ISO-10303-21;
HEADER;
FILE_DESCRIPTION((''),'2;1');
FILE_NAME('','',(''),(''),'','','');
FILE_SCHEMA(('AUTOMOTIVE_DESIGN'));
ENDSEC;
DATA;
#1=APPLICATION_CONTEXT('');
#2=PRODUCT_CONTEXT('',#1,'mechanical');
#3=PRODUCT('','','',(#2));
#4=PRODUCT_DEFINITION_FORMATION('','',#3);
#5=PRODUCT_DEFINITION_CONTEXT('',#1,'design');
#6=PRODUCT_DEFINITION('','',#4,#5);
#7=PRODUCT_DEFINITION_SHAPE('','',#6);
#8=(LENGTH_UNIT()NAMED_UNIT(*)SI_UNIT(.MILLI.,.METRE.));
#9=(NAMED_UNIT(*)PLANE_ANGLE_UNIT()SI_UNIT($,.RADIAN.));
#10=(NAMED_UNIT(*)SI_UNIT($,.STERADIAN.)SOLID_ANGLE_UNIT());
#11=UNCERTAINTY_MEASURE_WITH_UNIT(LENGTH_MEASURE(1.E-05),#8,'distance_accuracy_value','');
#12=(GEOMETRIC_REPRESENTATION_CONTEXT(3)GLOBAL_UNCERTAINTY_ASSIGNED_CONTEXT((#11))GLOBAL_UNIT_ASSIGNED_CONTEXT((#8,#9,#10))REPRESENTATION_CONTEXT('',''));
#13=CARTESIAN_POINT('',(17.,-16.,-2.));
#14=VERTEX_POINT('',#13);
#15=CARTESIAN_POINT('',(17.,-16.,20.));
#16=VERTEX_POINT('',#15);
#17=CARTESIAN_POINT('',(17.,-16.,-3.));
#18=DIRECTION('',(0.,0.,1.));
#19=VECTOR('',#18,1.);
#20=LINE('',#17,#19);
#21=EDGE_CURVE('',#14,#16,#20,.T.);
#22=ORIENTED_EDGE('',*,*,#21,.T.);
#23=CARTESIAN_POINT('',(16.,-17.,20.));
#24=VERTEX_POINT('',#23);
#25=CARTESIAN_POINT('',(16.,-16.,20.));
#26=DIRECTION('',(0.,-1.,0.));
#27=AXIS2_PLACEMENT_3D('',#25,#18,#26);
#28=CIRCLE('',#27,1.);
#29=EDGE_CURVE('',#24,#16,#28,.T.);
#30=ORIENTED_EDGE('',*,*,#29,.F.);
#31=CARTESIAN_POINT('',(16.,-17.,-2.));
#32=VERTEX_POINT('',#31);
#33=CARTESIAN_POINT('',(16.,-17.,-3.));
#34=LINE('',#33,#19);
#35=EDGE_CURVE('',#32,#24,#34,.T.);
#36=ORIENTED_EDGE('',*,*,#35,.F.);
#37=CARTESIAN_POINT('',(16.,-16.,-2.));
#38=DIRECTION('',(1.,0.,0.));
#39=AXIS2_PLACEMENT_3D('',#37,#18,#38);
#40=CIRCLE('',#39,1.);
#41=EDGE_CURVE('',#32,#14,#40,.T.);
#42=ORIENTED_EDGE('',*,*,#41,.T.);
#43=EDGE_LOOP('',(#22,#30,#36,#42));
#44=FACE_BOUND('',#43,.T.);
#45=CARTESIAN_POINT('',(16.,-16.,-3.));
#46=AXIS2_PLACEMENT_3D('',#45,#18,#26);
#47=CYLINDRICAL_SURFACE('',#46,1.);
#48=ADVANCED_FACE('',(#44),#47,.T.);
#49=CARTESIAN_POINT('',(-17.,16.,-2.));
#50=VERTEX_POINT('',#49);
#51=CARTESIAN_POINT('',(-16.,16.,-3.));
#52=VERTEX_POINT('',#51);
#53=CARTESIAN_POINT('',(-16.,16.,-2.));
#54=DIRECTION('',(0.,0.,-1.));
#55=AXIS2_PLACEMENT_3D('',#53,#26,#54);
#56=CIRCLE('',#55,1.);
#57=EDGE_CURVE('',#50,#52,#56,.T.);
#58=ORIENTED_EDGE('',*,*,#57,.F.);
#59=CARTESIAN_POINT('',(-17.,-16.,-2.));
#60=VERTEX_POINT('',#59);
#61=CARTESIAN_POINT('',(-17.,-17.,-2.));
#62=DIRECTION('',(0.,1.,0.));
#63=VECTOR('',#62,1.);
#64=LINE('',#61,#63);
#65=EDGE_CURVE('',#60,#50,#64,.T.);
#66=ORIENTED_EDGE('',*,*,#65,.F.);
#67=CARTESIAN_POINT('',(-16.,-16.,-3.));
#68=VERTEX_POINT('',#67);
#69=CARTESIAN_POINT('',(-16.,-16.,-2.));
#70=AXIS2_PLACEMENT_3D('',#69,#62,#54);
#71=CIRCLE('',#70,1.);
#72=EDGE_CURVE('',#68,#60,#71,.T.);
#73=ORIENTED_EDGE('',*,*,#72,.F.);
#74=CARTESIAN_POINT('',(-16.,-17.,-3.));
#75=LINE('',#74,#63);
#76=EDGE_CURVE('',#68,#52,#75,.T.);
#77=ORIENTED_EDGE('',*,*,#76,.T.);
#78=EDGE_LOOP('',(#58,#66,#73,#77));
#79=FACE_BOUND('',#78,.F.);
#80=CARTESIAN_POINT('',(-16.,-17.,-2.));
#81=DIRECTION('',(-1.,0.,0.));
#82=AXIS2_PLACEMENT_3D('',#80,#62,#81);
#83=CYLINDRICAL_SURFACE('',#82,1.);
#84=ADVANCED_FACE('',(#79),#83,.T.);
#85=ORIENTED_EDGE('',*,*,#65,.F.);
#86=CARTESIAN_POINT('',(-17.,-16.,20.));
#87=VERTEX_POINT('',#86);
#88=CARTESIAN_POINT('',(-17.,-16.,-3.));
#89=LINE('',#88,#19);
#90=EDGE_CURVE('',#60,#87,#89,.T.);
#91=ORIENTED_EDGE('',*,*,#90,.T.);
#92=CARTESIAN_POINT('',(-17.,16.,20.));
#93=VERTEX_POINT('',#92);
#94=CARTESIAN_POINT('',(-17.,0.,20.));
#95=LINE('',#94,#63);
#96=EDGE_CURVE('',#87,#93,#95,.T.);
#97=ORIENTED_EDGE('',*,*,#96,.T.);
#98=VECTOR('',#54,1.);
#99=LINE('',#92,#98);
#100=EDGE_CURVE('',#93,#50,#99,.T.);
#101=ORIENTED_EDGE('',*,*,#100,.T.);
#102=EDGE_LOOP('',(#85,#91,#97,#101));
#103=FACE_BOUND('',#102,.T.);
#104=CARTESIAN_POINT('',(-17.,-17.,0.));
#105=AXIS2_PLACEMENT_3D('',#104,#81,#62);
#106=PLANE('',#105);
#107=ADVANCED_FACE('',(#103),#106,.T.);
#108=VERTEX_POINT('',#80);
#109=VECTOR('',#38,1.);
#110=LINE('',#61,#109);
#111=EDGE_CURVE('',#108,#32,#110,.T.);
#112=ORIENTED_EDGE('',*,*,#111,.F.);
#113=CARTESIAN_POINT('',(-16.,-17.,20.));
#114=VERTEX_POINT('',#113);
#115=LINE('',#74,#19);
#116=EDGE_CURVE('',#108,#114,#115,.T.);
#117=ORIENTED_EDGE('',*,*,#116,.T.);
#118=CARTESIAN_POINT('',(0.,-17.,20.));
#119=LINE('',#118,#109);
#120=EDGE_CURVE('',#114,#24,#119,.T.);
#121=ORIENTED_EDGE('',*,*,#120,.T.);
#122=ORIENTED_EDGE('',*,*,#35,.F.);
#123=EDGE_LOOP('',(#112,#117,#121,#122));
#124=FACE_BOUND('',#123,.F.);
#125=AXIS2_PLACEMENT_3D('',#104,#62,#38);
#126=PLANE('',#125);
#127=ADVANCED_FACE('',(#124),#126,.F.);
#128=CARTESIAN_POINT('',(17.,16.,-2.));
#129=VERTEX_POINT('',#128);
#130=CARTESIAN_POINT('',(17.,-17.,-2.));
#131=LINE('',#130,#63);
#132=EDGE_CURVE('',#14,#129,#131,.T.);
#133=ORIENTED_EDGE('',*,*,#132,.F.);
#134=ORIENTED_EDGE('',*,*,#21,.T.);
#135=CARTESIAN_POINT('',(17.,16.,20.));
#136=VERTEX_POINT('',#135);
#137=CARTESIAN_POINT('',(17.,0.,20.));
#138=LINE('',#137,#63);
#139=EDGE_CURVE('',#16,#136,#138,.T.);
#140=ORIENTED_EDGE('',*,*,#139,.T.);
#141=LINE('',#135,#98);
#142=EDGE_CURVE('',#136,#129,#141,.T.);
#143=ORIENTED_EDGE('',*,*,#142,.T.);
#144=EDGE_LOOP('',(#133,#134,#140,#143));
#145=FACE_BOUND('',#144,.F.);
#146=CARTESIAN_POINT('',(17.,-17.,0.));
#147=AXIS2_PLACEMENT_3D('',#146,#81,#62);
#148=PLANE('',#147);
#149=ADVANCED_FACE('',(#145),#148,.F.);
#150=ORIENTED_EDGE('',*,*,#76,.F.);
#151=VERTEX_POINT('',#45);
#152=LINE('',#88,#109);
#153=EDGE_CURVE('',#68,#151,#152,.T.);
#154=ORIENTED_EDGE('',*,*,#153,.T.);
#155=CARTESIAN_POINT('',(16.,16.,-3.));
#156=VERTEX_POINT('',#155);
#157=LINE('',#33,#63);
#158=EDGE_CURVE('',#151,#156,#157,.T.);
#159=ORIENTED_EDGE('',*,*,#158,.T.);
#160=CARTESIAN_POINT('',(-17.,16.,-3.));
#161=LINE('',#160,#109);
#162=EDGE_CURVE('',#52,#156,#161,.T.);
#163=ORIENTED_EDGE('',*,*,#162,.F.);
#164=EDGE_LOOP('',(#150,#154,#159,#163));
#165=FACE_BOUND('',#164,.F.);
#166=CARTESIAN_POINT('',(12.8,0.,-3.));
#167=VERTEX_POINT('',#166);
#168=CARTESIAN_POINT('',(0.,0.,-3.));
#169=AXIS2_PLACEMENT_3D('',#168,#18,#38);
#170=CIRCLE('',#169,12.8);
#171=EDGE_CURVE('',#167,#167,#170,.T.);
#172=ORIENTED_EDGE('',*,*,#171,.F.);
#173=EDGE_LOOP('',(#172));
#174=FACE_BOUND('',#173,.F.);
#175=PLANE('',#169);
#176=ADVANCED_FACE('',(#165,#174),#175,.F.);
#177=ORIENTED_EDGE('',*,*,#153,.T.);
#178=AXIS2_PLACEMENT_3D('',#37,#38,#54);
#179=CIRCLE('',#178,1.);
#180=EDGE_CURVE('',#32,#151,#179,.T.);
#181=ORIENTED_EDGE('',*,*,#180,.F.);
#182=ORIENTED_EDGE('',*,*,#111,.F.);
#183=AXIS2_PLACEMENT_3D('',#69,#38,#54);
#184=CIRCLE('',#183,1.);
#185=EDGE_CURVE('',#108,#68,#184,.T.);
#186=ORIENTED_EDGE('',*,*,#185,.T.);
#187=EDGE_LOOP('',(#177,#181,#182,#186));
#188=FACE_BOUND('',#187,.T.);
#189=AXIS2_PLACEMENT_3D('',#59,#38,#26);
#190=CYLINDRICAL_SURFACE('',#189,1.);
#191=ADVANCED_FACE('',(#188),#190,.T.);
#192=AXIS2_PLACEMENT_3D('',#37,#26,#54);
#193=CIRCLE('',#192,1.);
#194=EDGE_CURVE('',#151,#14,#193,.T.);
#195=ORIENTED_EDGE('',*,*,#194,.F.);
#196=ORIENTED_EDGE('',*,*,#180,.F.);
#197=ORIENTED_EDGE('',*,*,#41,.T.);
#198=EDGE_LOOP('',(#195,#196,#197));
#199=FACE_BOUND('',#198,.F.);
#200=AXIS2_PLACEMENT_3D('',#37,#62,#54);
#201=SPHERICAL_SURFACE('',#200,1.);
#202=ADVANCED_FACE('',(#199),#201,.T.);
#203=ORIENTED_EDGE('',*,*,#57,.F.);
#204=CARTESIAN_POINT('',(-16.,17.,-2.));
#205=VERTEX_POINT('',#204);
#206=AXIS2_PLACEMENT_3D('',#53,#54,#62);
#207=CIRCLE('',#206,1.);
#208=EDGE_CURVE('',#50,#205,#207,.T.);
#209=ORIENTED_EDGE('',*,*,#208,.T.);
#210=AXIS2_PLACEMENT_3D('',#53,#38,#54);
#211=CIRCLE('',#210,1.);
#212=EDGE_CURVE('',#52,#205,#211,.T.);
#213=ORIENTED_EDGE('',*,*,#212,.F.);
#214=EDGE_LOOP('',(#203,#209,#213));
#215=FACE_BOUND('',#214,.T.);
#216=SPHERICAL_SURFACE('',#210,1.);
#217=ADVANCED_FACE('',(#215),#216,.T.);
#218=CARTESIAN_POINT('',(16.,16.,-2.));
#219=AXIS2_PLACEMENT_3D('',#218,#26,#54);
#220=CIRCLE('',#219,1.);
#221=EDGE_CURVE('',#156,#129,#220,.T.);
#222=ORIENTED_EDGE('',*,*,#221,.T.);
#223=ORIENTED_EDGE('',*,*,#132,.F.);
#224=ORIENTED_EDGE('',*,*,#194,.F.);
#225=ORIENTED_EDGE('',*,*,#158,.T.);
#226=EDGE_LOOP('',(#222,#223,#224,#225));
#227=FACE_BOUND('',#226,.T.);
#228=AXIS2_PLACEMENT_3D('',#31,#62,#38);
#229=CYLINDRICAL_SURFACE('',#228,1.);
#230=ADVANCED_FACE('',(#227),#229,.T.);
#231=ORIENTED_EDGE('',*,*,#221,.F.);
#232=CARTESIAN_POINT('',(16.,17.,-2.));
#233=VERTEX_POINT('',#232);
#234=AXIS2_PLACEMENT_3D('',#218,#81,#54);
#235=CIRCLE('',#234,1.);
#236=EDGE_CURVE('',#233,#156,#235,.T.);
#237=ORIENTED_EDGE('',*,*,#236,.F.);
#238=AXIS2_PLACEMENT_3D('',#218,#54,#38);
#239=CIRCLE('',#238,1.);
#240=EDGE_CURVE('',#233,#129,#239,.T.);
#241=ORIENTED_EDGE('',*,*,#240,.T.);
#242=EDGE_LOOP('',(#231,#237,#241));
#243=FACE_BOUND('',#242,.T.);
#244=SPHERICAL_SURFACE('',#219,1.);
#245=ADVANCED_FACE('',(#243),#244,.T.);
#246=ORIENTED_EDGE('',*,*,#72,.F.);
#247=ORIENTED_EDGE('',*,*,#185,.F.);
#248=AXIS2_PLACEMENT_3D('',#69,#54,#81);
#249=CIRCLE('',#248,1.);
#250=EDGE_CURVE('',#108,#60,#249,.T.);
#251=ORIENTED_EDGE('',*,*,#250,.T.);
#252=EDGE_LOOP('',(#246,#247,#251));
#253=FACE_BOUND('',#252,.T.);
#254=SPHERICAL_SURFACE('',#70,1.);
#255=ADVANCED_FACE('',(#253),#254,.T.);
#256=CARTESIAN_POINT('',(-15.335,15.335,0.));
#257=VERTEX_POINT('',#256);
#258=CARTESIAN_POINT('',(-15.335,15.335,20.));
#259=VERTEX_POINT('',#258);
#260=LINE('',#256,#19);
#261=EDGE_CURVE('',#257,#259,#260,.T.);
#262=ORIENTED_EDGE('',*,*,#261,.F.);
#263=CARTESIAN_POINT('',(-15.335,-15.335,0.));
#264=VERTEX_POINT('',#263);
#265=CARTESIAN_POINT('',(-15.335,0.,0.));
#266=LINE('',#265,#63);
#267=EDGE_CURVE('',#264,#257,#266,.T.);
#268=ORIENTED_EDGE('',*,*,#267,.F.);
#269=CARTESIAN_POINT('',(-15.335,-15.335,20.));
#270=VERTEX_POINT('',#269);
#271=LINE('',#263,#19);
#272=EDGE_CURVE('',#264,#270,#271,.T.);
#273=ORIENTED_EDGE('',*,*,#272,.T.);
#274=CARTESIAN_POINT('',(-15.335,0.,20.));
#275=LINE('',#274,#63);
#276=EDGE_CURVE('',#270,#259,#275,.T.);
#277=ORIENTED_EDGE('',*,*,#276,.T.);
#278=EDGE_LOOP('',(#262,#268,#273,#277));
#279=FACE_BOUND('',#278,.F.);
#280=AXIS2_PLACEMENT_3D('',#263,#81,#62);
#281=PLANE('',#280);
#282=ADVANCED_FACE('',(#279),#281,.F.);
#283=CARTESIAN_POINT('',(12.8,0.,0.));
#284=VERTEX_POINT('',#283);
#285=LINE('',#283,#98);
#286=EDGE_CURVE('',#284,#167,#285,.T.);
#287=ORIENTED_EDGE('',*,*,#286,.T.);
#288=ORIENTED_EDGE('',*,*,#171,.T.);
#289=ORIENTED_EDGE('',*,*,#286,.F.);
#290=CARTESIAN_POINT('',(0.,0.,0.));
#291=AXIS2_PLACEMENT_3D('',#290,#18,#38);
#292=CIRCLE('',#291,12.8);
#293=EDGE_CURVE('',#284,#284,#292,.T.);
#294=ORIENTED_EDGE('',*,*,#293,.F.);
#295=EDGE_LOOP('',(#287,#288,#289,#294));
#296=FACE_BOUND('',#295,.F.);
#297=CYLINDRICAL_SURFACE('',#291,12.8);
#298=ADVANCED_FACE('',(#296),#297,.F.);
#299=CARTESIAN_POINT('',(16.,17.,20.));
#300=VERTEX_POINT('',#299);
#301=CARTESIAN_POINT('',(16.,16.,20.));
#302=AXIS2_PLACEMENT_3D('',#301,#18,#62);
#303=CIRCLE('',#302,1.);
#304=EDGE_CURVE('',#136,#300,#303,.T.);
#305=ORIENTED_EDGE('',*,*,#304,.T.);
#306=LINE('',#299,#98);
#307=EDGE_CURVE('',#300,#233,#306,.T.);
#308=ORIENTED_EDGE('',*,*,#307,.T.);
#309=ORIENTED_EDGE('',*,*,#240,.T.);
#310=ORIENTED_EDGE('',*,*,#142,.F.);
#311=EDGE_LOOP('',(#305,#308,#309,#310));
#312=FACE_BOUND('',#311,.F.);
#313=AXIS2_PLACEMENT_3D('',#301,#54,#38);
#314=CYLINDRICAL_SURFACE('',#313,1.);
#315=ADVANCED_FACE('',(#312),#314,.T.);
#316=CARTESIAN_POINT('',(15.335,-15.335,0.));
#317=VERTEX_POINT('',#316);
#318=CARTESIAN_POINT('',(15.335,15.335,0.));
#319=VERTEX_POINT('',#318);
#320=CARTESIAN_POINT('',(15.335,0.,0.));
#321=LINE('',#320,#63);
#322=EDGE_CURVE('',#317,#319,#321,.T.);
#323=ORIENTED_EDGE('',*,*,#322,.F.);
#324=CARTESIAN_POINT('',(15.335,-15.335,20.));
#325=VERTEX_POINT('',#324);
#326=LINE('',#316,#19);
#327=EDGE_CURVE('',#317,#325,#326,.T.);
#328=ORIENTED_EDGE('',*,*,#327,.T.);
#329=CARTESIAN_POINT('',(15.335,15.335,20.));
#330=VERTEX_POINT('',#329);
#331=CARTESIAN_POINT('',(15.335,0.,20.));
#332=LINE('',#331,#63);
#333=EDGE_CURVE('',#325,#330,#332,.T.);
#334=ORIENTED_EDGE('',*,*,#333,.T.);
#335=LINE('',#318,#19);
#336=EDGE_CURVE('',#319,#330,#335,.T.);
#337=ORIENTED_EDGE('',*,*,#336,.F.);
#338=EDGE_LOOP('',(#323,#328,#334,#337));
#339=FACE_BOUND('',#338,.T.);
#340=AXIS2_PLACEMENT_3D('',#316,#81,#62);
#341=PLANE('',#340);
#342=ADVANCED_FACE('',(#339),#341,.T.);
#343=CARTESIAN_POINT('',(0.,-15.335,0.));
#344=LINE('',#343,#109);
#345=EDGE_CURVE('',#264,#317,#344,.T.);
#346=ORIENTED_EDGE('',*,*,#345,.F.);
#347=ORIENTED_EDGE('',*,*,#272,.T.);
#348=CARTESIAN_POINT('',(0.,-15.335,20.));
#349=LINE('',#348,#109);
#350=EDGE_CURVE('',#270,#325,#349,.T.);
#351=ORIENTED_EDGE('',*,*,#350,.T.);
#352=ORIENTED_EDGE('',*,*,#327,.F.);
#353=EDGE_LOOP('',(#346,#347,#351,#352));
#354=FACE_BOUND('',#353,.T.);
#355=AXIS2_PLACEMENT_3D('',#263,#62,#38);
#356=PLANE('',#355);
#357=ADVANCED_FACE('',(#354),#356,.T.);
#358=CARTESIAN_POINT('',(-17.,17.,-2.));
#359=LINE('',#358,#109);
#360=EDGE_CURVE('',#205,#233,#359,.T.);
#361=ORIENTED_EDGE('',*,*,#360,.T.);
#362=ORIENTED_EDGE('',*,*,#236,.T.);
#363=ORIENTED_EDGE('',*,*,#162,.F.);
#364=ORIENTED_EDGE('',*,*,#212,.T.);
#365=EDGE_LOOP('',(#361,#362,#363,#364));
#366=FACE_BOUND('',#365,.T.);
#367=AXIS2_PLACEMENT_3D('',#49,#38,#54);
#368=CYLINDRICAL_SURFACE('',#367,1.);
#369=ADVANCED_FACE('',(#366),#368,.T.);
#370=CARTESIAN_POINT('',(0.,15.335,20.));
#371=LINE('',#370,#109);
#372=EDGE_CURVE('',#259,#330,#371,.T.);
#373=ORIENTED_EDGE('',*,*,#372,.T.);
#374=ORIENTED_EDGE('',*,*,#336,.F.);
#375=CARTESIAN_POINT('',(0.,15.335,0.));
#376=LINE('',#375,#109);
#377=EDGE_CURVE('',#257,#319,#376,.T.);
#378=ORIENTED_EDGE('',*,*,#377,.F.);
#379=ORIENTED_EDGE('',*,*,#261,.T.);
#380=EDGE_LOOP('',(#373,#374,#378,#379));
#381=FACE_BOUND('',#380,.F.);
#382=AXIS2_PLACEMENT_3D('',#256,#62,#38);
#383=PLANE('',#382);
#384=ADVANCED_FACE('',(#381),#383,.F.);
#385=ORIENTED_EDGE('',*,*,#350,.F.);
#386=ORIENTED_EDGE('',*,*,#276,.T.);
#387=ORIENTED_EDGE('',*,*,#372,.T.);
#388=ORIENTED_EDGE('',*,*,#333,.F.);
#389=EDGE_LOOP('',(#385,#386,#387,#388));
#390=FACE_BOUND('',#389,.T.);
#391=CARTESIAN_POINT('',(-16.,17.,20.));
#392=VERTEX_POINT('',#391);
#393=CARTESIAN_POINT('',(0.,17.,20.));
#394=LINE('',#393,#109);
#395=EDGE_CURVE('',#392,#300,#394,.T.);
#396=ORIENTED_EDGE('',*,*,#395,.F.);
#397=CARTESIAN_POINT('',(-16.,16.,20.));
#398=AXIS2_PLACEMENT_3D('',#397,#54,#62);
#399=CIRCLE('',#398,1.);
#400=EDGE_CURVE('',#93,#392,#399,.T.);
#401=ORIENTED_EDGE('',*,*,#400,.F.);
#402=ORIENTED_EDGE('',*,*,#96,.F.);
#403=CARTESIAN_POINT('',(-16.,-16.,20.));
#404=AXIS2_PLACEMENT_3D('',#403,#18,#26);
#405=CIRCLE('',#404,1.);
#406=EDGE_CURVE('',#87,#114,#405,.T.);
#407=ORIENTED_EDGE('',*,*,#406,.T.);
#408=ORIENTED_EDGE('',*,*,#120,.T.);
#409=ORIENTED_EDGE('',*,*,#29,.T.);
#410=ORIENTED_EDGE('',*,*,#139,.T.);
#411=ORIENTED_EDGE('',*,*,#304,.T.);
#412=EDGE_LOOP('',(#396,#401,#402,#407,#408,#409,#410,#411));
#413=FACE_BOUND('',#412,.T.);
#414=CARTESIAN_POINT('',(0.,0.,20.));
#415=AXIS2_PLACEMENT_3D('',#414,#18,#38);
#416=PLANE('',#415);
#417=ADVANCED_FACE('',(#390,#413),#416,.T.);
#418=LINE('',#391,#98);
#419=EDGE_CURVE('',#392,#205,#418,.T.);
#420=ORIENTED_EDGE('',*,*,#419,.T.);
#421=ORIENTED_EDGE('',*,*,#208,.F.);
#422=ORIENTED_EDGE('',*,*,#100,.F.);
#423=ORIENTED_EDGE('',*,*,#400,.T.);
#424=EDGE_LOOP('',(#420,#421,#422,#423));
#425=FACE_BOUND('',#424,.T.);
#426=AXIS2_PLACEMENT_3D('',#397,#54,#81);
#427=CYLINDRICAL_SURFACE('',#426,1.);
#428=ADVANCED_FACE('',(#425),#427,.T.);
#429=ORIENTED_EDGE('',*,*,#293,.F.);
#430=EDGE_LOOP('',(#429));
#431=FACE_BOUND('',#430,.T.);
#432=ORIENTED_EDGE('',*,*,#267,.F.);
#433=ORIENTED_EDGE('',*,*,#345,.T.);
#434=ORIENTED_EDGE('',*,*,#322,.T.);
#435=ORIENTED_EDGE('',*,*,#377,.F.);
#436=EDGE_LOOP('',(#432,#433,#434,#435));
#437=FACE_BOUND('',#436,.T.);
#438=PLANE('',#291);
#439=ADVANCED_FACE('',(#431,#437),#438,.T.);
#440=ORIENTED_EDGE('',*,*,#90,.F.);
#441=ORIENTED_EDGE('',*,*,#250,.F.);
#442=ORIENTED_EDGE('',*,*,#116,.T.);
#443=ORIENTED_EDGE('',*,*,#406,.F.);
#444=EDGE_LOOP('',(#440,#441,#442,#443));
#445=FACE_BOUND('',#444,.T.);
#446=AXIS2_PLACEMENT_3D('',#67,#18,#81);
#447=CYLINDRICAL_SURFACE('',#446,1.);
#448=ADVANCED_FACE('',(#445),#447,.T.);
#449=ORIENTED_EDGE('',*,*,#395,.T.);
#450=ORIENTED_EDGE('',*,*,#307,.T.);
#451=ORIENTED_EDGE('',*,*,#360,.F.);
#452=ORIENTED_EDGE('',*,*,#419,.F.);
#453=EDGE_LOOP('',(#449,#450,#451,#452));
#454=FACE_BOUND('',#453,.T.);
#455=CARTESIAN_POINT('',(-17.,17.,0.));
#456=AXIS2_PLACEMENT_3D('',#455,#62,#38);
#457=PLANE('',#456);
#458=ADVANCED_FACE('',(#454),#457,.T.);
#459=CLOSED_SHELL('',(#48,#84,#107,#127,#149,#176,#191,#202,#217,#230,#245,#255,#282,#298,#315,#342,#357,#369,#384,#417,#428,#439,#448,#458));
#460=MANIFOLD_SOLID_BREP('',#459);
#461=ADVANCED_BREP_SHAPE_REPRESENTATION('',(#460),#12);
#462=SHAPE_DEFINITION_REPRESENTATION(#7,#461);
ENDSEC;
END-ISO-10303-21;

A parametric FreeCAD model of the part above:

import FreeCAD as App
import Part
import Sketcher
Q = App.Units.Quantity


def edges_at(feature, points):
    """Names of the edges that pass closest to the given points."""
    edges = feature.Shape.Edges
    near = lambda p: min(range(len(edges)), key=lambda i: edges[i].distToShape(Part.Vertex(*p))[0])
    return sorted({f"Edge{near(p) + 1}" for p in points})


def add_polygon(sketch, points):
    """Adds a closed chain of lines whose ends are joined by coincident constraints."""
    first, n = sketch.GeometryCount, len(points)
    for a, b in zip(points, points[1:] + points[:1]):
        sketch.addGeometry(Part.LineSegment(App.Vector(*a, 0), App.Vector(*b, 0)), False)
    for i in range(n):
        sketch.addConstraint(Sketcher.Constraint("Coincident", first + i, 2, first + (i + 1) % n, 1))

doc = App.newDocument("Part")
body = doc.addObject("PartDesign::Body", "Body")

# Sketch on XY plane
sketch1 = body.newObject("Sketcher::SketchObject", "Sketch")
sketch1.AttachmentSupport = (doc.getObject("XY_Plane"), [""])
sketch1.MapMode = "FlatFace"
add_polygon(sketch1, [(-17, 17), (-17, -17), (17, -17), (17, 17)])  # lines 0-3
sketch1.addGeometry(Part.Circle(App.Vector(0, 0, 0), App.Vector(0, 0, 1), 12.8), False)  # 4
sketch1.addConstraint(Sketcher.Constraint("Vertical", 0))
sketch1.addConstraint(Sketcher.Constraint("Horizontal", 1))
sketch1.addConstraint(Sketcher.Constraint("Vertical", 2))
sketch1.addConstraint(Sketcher.Constraint("Horizontal", 3))
sketch1.addConstraint(Sketcher.Constraint("Coincident", 4, 3, -1, 1))
sketch1.addConstraint(Sketcher.Constraint("Symmetric", 0, 2, 2, 2, -1, 1))
sketch1.addConstraint(Sketcher.Constraint("Equal", 3, 0))
sketch1.addConstraint(Sketcher.Constraint("Diameter", 4, Q("25.6 mm")))
sketch1.addConstraint(Sketcher.Constraint("DistanceX", 1, 1, 1, 2, Q("34 mm")))
pad1 = body.newObject("PartDesign::Pad", "Pad")
pad1.Profile = sketch1
pad1.Length = 3
pad1.Reversed = True

# Sketch on XY plane
sketch2 = body.newObject("Sketcher::SketchObject", "Sketch001")
sketch2.AttachmentSupport = (doc.getObject("XY_Plane"), [""])
sketch2.MapMode = "FlatFace"
add_polygon(sketch2, [(-17, 17), (-17, -17), (17, -17), (17, 17)])  # lines 0-3
add_polygon(sketch2, [(15.335, -15.335), (-15.335, -15.335), (-15.335, 15.335), (15.335, 15.335)])  # lines 4-7
sketch2.addConstraint(Sketcher.Constraint("Vertical", 0))
sketch2.addConstraint(Sketcher.Constraint("Horizontal", 1))
sketch2.addConstraint(Sketcher.Constraint("Vertical", 2))
sketch2.addConstraint(Sketcher.Constraint("Horizontal", 3))
sketch2.addConstraint(Sketcher.Constraint("Horizontal", 4))
sketch2.addConstraint(Sketcher.Constraint("Vertical", 5))
sketch2.addConstraint(Sketcher.Constraint("Horizontal", 6))
sketch2.addConstraint(Sketcher.Constraint("Vertical", 7))
sketch2.addConstraint(Sketcher.Constraint("Symmetric", 0, 2, 2, 2, -1, 1))
sketch2.addConstraint(Sketcher.Constraint("Symmetric", 4, 2, 6, 2, -1, 1))
sketch2.addConstraint(Sketcher.Constraint("Equal", 3, 0))
sketch2.addConstraint(Sketcher.Constraint("Equal", 6, 5))
sketch2.addConstraint(Sketcher.Constraint("DistanceX", 1, 1, 1, 2, Q("34 mm")))
sketch2.addConstraint(Sketcher.Constraint("DistanceX", 4, 2, 4, 1, Q("30.67 mm")))
pad2 = body.newObject("PartDesign::Pad", "Pad001")
pad2.Profile = sketch2
pad2.Length = 20
doc.recompute()

fillet = body.newObject("PartDesign::Fillet", "Fillet")
fillet.Base = (pad2, edges_at(pad2, [
    (17, 0, -3),
    (0, 17, -3),
    (-17, 0, -3),
    (0, -17, -3),
    (17, -17, 8.5),
    (17, 17, 8.5),
    (-17, 17, 8.5),
    (-17, -17, 8.5),
]))
fillet.Radius = 1

doc.recompute()
